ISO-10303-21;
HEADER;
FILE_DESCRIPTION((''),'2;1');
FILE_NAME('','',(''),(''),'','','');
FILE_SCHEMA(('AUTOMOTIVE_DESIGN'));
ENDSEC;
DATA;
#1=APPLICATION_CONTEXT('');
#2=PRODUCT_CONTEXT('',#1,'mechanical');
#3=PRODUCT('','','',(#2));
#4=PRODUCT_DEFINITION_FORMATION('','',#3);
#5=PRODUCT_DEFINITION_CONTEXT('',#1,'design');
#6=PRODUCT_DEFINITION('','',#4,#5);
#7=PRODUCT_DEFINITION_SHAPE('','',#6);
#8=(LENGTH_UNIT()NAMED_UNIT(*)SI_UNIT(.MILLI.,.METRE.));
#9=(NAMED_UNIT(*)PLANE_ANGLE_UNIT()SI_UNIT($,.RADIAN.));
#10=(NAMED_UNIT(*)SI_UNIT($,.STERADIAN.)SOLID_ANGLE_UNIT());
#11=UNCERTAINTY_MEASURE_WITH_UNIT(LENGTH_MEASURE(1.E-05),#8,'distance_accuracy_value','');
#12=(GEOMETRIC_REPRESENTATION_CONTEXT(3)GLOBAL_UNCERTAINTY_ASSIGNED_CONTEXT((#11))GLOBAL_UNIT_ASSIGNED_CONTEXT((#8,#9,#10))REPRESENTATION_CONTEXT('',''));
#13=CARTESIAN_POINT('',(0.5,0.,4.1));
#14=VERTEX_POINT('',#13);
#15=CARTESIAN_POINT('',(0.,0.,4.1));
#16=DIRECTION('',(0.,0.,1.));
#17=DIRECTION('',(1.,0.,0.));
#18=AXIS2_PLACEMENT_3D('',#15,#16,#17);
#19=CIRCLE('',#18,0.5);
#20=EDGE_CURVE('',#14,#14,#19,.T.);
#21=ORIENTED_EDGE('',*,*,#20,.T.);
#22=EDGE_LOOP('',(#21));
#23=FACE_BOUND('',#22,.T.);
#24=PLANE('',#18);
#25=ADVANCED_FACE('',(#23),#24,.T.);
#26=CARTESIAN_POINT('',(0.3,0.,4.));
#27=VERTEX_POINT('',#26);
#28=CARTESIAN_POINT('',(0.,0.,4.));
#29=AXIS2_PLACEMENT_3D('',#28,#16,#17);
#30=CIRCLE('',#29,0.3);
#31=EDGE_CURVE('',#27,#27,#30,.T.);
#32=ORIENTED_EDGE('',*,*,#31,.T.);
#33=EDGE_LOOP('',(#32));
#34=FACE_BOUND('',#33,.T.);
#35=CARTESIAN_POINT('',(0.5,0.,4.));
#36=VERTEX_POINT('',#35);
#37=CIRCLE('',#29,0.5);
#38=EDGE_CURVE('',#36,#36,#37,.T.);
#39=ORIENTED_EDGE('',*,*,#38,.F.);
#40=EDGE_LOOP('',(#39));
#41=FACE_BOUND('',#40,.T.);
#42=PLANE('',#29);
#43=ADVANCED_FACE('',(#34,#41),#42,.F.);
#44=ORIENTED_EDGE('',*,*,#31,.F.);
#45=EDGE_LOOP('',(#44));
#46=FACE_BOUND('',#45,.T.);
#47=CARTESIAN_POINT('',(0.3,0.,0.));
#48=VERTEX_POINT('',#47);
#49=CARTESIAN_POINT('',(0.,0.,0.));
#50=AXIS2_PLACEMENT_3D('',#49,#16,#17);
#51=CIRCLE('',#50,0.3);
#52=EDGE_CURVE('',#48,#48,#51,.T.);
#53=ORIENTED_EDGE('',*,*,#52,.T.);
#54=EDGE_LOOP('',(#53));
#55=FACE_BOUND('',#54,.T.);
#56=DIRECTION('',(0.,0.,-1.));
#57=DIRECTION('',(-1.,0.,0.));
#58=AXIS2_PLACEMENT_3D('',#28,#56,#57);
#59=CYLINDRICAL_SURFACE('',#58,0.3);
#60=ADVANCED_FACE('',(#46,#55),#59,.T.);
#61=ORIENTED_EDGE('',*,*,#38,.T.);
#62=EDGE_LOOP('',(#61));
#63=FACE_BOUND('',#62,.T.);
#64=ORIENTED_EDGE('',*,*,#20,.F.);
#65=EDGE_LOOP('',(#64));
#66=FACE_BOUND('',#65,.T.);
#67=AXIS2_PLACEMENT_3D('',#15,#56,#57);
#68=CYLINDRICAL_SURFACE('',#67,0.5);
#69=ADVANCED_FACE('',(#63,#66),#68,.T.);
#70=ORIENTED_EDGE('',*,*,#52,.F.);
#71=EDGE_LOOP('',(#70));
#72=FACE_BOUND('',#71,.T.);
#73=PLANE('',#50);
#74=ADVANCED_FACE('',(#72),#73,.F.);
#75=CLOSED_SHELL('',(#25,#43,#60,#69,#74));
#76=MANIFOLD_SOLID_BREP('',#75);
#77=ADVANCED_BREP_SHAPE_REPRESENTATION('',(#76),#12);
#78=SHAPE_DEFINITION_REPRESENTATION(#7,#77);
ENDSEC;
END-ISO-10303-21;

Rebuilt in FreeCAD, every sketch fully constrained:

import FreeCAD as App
import Part
import Sketcher

doc = App.newDocument("Part")
body = doc.addObject("PartDesign::Body", "Body")

sketch1 = body.newObject("Sketcher::SketchObject", "Sketch")
sketch1.AttachmentSupport = (doc.getObject("XY_Plane"), [""])
sketch1.MapMode = "FlatFace"
sketch1.addGeometry(Part.Circle(App.Vector(0, 0, 0), App.Vector(0, 0, 1), 0.3), False)
sketch1.addConstraint(Sketcher.Constraint("Coincident", 0, 3, -1, 1))
sketch1.addConstraint(Sketcher.Constraint("Diameter", 0, 0.6))
pad1 = body.newObject("PartDesign::Pad", "Pad")
pad1.Profile = sketch1
pad1.Length = 4

sketch2 = body.newObject("Sketcher::SketchObject", "Sketch001")
sketch2.AttachmentSupport = (doc.getObject("XY_Plane"), [""])
sketch2.MapMode = "FlatFace"
sketch2.AttachmentOffset = App.Placement(App.Vector(0, 0, 4), App.Rotation())
sketch2.addGeometry(Part.Circle(App.Vector(0, 0, 0), App.Vector(0, 0, 1), 0.5), False)
sketch2.addConstraint(Sketcher.Constraint("Coincident", 0, 3, -1, 1))
sketch2.addConstraint(Sketcher.Constraint("Diameter", 0, 1.0))
pad2 = body.newObject("PartDesign::Pad", "Pad001")
pad2.Profile = sketch2
pad2.Length = 0.1

doc.recompute()
